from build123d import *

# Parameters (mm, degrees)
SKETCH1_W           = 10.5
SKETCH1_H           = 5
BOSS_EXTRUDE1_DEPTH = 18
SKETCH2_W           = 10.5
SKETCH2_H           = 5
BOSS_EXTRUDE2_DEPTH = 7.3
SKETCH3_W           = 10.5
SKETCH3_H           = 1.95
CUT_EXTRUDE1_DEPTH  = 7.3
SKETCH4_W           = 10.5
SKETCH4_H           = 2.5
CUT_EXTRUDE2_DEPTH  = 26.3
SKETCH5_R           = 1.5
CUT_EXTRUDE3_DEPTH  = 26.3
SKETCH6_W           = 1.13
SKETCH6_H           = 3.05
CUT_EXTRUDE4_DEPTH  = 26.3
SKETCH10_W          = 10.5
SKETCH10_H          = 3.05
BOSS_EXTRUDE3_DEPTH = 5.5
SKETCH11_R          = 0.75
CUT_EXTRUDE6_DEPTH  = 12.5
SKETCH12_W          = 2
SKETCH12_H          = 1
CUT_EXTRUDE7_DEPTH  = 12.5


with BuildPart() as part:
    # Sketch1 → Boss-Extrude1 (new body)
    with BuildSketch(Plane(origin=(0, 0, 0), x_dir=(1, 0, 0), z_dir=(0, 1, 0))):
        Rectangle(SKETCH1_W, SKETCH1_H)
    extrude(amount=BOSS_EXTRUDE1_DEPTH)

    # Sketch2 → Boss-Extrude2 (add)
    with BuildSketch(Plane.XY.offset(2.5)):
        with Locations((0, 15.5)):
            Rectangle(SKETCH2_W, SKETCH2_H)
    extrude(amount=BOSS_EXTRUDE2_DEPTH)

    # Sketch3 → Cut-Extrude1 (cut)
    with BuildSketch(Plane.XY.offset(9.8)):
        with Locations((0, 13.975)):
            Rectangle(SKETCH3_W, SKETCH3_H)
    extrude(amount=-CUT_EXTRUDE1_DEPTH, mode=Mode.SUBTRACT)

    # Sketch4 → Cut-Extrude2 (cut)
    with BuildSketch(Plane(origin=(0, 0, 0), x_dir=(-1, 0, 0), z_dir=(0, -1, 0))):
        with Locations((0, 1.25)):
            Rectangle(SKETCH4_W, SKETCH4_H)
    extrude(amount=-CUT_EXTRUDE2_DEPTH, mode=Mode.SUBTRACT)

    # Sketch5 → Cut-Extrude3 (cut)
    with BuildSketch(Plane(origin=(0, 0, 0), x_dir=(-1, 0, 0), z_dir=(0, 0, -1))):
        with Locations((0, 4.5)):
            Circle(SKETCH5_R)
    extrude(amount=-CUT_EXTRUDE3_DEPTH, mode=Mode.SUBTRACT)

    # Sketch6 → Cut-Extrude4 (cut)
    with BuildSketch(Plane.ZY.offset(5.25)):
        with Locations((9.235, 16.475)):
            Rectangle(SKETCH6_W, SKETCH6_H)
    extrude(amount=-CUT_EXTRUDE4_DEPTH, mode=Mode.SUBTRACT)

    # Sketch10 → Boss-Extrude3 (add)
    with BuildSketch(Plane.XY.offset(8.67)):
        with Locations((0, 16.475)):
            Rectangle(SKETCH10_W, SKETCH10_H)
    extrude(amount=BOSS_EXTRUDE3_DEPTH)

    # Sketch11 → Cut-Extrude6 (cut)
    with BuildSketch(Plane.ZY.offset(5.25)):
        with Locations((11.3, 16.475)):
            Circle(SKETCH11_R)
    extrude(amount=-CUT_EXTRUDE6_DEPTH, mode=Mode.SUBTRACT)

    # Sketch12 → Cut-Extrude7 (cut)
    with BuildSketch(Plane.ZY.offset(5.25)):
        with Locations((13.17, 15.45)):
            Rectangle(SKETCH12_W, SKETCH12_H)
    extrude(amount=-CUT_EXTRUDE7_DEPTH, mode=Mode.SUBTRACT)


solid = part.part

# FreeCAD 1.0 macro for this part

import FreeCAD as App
import Part
import Sketcher
from FreeCAD import Vector


def add_polygon(sketch, points):
    """Adds a closed chain of lines whose ends are joined by coincident constraints."""
    first, n = sketch.GeometryCount, len(points)
    for a, b in zip(points, points[1:] + points[:1]):
        sketch.addGeometry(Part.LineSegment(App.Vector(*a, 0), App.Vector(*b, 0)), False)
    for i in range(n):
        sketch.addConstraint(Sketcher.Constraint("Coincident", first + i, 2, first + (i + 1) % n, 1))

doc = App.newDocument("Part")
body = doc.addObject("PartDesign::Body", "Body")

sketch1 = body.newObject("Sketcher::SketchObject", "Sketch")
sketch1.AttachmentSupport = (doc.getObject("XZ_Plane"), [""])
sketch1.MapMode = "FlatFace"
add_polygon(sketch1, [(-5.25, -2.5), (-5.25, 2.5), (5.25, 2.5), (5.25, -2.5)])
sketch1.addConstraint([
    Sketcher.Constraint("Vertical", 0),
    Sketcher.Constraint("Horizontal", 1),
    Sketcher.Constraint("Vertical", 2),
    Sketcher.Constraint("Horizontal", 3),
    Sketcher.Constraint("Symmetric", 0, 2, 2, 2, -1, 1),
    Sketcher.Constraint("DistanceY", 0, 1, 0, 2, 5.0),
    Sketcher.Constraint("DistanceX", 1, 1, 1, 2, 10.5),
])
pad1 = body.newObject("PartDesign::Pad", "Pad")
pad1.Profile = sketch1
pad1.Length = 18
pad1.Reversed = True

sketch2 = body.newObject("Sketcher::SketchObject", "Sketch001")
sketch2.AttachmentSupport = (doc.getObject("XY_Plane"), [""])
sketch2.MapMode = "FlatFace"
sketch2.AttachmentOffset = App.Placement(Vector(0, 0, 2.5), App.Rotation())
add_polygon(sketch2, [(-5.25, 18), (-5.25, 13), (5.25, 13), (5.25, 18)])
sketch2.addConstraint([
    Sketcher.Constraint("Vertical", 0),
    Sketcher.Constraint("Horizontal", 1),
    Sketcher.Constraint("Vertical", 2),
    Sketcher.Constraint("Horizontal", 3),
    Sketcher.Constraint("DistanceY", 0, 2, 0, 1, 5.0),
    Sketcher.Constraint("DistanceX", 1, 1, 1, 2, 10.5),
    Sketcher.Constraint("DistanceY", -1, 1, 0, 2, 13.0),
    Sketcher.Constraint("DistanceX", 0, 2, -1, 1, 5.25),
])
pad2 = body.newObject("PartDesign::Pad", "Pad001")
pad2.Profile = sketch2
pad2.Length = 7.3

sketch3 = body.newObject("Sketcher::SketchObject", "Sketch002")
sketch3.AttachmentSupport = (doc.getObject("XY_Plane"), [""])
sketch3.MapMode = "FlatFace"
sketch3.AttachmentOffset = App.Placement(Vector(0, 0, 9.8), App.Rotation())
add_polygon(sketch3, [(-5.25, 14.95), (-5.25, 13), (5.25, 13), (5.25, 14.95)])
sketch3.addConstraint([
    Sketcher.Constraint("Vertical", 0),
    Sketcher.Constraint("Horizontal", 1),
    Sketcher.Constraint("Vertical", 2),
    Sketcher.Constraint("Horizontal", 3),
    Sketcher.Constraint("DistanceX", 1, 1, 1, 2, 10.5),
    Sketcher.Constraint("DistanceY", -1, 1, 0, 2, 13.0),
    Sketcher.Constraint("DistanceY", 0, 2, 0, 1, 1.95),
    Sketcher.Constraint("DistanceX", 0, 2, -1, 1, 5.25),
])
pocket1 = body.newObject("PartDesign::Pocket", "Pocket")
pocket1.Profile = sketch3
pocket1.Length = 7.3

sketch4 = body.newObject("Sketcher::SketchObject", "Sketch003")
sketch4.AttachmentSupport = (doc.getObject("XZ_Plane"), [""])
sketch4.MapMode = "FlatFace"
add_polygon(sketch4, [(5.25, -2.5), (5.25, 0), (-5.25, 0), (-5.25, -2.5)])
sketch4.addConstraint([
    Sketcher.Constraint("Vertical", 0),
    Sketcher.Constraint("Horizontal", 1),
    Sketcher.Constraint("Vertical", 2),
    Sketcher.Constraint("Horizontal", 3),
    Sketcher.Constraint("Symmetric", 0, 2, 1, 2, -1, 1),
    Sketcher.Constraint("DistanceX", 1, 2, 1, 1, 10.5),
    Sketcher.Constraint("DistanceY", 0, 1, 0, 2, 2.5),
])
pocket2 = body.newObject("PartDesign::Pocket", "Pocket001")
pocket2.Profile = sketch4
pocket2.Length = 26.3

sketch5 = body.newObject("Sketcher::SketchObject", "Sketch004")
sketch5.AttachmentSupport = (doc.getObject("XY_Plane"), [""])
sketch5.MapMode = "FlatFace"
sketch5.addGeometry(Part.Circle(Vector(0, 4.5, 0), Vector(0, 0, 1), 1.5), False)
sketch5.addConstraint([
    Sketcher.Constraint("PointOnObject", 0, 3, -2),
    Sketcher.Constraint("Diameter", 0, 3.0),
    Sketcher.Constraint("DistanceY", -1, 1, 0, 3, 4.5),
])
pocket3 = body.newObject("PartDesign::Pocket", "Pocket002")
pocket3.Profile = sketch5
pocket3.Length = 26.3
pocket3.Reversed = True

sketch6 = body.newObject("Sketcher::SketchObject", "Sketch005")
sketch6.AttachmentSupport = (doc.getObject("YZ_Plane"), [""])
sketch6.MapMode = "FlatFace"
sketch6.AttachmentOffset = App.Placement(Vector(0, 0, -5.25), App.Rotation())
add_polygon(sketch6, [(18, 8.67), (14.95, 8.67), (14.95, 9.8), (18, 9.8)])
sketch6.addConstraint([
    Sketcher.Constraint("Horizontal", 0),
    Sketcher.Constraint("Vertical", 1),
    Sketcher.Constraint("Horizontal", 2),
    Sketcher.Constraint("Vertical", 3),
    Sketcher.Constraint("DistanceX", -1, 1, 2, 2, 18.0),
    Sketcher.Constraint("DistanceX", 0, 2, 0, 1, 3.05),
    Sketcher.Constraint("DistanceY", 1, 1, 1, 2, 1.13),
    Sketcher.Constraint("DistanceY", -1, 1, 1, 2, 9.8),
])
pocket4 = body.newObject("PartDesign::Pocket", "Pocket003")
pocket4.Profile = sketch6
pocket4.Length = 26.3
pocket4.Reversed = True

sketch7 = body.newObject("Sketcher::SketchObject", "Sketch006")
sketch7.AttachmentSupport = (doc.getObject("XY_Plane"), [""])
sketch7.MapMode = "FlatFace"
sketch7.AttachmentOffset = App.Placement(Vector(0, 0, 8.67), App.Rotation())
add_polygon(sketch7, [(-5.25, 18), (-5.25, 14.95), (5.25, 14.95), (5.25, 18)])
sketch7.addConstraint([
    Sketcher.Constraint("Vertical", 0),
    Sketcher.Constraint("Horizontal", 1),
    Sketcher.Constraint("Vertical", 2),
    Sketcher.Constraint("Horizontal", 3),
    Sketcher.Constraint("DistanceX", 1, 1, 1, 2, 10.5),
    Sketcher.Constraint("DistanceY", -1, 1, 2, 2, 18.0),
    Sketcher.Constraint("DistanceY", 0, 2, 0, 1, 3.05),
    Sketcher.Constraint("DistanceX", 0, 2, -1, 1, 5.25),
])
pad3 = body.newObject("PartDesign::Pad", "Pad002")
pad3.Profile = sketch7
pad3.Length = 5.5

sketch8 = body.newObject("Sketcher::SketchObject", "Sketch007")
sketch8.AttachmentSupport = (doc.getObject("YZ_Plane"), [""])
sketch8.MapMode = "FlatFace"
sketch8.AttachmentOffset = App.Placement(Vector(0, 0, -5.25), App.Rotation())
sketch8.addGeometry(Part.Circle(Vector(16.475, 11.3, 0), Vector(0, 0, 1), 0.75), False)
sketch8.addConstraint([
    Sketcher.Constraint("Diameter", 0, 1.5),
    Sketcher.Constraint("DistanceY", -1, 1, 0, 3, 11.3),
    Sketcher.Constraint("DistanceX", -1, 1, 0, 3, 16.475),
])
pocket5 = body.newObject("PartDesign::Pocket", "Pocket004")
pocket5.Profile = sketch8
pocket5.Length = 12.5
pocket5.Reversed = True

sketch9 = body.newObject("Sketcher::SketchObject", "Sketch008")
sketch9.AttachmentSupport = (doc.getObject("YZ_Plane"), [""])
sketch9.MapMode = "FlatFace"
sketch9.AttachmentOffset = App.Placement(Vector(0, 0, -5.25), App.Rotation())
add_polygon(sketch9, [(15.95, 12.17), (14.95, 12.17), (14.95, 14.17), (15.95, 14.17)])
sketch9.addConstraint([
    Sketcher.Constraint("Horizontal", 0),
    Sketcher.Constraint("Vertical", 1),
    Sketcher.Constraint("Horizontal", 2),
    Sketcher.Constraint("Vertical", 3),
    Sketcher.Constraint("DistanceX", 0, 2, 0, 1, 1.0),
    Sketcher.Constraint("DistanceY", 1, 1, 1, 2, 2.0),
    Sketcher.Constraint("DistanceX", -1, 1, 0, 2, 14.95),
    Sketcher.Constraint("DistanceY", -1, 1, 0, 2, 12.17),
])
pocket6 = body.newObject("PartDesign::Pocket", "Pocket005")
pocket6.Profile = sketch9
pocket6.Length = 12.5
pocket6.Reversed = True

doc.recompute()
